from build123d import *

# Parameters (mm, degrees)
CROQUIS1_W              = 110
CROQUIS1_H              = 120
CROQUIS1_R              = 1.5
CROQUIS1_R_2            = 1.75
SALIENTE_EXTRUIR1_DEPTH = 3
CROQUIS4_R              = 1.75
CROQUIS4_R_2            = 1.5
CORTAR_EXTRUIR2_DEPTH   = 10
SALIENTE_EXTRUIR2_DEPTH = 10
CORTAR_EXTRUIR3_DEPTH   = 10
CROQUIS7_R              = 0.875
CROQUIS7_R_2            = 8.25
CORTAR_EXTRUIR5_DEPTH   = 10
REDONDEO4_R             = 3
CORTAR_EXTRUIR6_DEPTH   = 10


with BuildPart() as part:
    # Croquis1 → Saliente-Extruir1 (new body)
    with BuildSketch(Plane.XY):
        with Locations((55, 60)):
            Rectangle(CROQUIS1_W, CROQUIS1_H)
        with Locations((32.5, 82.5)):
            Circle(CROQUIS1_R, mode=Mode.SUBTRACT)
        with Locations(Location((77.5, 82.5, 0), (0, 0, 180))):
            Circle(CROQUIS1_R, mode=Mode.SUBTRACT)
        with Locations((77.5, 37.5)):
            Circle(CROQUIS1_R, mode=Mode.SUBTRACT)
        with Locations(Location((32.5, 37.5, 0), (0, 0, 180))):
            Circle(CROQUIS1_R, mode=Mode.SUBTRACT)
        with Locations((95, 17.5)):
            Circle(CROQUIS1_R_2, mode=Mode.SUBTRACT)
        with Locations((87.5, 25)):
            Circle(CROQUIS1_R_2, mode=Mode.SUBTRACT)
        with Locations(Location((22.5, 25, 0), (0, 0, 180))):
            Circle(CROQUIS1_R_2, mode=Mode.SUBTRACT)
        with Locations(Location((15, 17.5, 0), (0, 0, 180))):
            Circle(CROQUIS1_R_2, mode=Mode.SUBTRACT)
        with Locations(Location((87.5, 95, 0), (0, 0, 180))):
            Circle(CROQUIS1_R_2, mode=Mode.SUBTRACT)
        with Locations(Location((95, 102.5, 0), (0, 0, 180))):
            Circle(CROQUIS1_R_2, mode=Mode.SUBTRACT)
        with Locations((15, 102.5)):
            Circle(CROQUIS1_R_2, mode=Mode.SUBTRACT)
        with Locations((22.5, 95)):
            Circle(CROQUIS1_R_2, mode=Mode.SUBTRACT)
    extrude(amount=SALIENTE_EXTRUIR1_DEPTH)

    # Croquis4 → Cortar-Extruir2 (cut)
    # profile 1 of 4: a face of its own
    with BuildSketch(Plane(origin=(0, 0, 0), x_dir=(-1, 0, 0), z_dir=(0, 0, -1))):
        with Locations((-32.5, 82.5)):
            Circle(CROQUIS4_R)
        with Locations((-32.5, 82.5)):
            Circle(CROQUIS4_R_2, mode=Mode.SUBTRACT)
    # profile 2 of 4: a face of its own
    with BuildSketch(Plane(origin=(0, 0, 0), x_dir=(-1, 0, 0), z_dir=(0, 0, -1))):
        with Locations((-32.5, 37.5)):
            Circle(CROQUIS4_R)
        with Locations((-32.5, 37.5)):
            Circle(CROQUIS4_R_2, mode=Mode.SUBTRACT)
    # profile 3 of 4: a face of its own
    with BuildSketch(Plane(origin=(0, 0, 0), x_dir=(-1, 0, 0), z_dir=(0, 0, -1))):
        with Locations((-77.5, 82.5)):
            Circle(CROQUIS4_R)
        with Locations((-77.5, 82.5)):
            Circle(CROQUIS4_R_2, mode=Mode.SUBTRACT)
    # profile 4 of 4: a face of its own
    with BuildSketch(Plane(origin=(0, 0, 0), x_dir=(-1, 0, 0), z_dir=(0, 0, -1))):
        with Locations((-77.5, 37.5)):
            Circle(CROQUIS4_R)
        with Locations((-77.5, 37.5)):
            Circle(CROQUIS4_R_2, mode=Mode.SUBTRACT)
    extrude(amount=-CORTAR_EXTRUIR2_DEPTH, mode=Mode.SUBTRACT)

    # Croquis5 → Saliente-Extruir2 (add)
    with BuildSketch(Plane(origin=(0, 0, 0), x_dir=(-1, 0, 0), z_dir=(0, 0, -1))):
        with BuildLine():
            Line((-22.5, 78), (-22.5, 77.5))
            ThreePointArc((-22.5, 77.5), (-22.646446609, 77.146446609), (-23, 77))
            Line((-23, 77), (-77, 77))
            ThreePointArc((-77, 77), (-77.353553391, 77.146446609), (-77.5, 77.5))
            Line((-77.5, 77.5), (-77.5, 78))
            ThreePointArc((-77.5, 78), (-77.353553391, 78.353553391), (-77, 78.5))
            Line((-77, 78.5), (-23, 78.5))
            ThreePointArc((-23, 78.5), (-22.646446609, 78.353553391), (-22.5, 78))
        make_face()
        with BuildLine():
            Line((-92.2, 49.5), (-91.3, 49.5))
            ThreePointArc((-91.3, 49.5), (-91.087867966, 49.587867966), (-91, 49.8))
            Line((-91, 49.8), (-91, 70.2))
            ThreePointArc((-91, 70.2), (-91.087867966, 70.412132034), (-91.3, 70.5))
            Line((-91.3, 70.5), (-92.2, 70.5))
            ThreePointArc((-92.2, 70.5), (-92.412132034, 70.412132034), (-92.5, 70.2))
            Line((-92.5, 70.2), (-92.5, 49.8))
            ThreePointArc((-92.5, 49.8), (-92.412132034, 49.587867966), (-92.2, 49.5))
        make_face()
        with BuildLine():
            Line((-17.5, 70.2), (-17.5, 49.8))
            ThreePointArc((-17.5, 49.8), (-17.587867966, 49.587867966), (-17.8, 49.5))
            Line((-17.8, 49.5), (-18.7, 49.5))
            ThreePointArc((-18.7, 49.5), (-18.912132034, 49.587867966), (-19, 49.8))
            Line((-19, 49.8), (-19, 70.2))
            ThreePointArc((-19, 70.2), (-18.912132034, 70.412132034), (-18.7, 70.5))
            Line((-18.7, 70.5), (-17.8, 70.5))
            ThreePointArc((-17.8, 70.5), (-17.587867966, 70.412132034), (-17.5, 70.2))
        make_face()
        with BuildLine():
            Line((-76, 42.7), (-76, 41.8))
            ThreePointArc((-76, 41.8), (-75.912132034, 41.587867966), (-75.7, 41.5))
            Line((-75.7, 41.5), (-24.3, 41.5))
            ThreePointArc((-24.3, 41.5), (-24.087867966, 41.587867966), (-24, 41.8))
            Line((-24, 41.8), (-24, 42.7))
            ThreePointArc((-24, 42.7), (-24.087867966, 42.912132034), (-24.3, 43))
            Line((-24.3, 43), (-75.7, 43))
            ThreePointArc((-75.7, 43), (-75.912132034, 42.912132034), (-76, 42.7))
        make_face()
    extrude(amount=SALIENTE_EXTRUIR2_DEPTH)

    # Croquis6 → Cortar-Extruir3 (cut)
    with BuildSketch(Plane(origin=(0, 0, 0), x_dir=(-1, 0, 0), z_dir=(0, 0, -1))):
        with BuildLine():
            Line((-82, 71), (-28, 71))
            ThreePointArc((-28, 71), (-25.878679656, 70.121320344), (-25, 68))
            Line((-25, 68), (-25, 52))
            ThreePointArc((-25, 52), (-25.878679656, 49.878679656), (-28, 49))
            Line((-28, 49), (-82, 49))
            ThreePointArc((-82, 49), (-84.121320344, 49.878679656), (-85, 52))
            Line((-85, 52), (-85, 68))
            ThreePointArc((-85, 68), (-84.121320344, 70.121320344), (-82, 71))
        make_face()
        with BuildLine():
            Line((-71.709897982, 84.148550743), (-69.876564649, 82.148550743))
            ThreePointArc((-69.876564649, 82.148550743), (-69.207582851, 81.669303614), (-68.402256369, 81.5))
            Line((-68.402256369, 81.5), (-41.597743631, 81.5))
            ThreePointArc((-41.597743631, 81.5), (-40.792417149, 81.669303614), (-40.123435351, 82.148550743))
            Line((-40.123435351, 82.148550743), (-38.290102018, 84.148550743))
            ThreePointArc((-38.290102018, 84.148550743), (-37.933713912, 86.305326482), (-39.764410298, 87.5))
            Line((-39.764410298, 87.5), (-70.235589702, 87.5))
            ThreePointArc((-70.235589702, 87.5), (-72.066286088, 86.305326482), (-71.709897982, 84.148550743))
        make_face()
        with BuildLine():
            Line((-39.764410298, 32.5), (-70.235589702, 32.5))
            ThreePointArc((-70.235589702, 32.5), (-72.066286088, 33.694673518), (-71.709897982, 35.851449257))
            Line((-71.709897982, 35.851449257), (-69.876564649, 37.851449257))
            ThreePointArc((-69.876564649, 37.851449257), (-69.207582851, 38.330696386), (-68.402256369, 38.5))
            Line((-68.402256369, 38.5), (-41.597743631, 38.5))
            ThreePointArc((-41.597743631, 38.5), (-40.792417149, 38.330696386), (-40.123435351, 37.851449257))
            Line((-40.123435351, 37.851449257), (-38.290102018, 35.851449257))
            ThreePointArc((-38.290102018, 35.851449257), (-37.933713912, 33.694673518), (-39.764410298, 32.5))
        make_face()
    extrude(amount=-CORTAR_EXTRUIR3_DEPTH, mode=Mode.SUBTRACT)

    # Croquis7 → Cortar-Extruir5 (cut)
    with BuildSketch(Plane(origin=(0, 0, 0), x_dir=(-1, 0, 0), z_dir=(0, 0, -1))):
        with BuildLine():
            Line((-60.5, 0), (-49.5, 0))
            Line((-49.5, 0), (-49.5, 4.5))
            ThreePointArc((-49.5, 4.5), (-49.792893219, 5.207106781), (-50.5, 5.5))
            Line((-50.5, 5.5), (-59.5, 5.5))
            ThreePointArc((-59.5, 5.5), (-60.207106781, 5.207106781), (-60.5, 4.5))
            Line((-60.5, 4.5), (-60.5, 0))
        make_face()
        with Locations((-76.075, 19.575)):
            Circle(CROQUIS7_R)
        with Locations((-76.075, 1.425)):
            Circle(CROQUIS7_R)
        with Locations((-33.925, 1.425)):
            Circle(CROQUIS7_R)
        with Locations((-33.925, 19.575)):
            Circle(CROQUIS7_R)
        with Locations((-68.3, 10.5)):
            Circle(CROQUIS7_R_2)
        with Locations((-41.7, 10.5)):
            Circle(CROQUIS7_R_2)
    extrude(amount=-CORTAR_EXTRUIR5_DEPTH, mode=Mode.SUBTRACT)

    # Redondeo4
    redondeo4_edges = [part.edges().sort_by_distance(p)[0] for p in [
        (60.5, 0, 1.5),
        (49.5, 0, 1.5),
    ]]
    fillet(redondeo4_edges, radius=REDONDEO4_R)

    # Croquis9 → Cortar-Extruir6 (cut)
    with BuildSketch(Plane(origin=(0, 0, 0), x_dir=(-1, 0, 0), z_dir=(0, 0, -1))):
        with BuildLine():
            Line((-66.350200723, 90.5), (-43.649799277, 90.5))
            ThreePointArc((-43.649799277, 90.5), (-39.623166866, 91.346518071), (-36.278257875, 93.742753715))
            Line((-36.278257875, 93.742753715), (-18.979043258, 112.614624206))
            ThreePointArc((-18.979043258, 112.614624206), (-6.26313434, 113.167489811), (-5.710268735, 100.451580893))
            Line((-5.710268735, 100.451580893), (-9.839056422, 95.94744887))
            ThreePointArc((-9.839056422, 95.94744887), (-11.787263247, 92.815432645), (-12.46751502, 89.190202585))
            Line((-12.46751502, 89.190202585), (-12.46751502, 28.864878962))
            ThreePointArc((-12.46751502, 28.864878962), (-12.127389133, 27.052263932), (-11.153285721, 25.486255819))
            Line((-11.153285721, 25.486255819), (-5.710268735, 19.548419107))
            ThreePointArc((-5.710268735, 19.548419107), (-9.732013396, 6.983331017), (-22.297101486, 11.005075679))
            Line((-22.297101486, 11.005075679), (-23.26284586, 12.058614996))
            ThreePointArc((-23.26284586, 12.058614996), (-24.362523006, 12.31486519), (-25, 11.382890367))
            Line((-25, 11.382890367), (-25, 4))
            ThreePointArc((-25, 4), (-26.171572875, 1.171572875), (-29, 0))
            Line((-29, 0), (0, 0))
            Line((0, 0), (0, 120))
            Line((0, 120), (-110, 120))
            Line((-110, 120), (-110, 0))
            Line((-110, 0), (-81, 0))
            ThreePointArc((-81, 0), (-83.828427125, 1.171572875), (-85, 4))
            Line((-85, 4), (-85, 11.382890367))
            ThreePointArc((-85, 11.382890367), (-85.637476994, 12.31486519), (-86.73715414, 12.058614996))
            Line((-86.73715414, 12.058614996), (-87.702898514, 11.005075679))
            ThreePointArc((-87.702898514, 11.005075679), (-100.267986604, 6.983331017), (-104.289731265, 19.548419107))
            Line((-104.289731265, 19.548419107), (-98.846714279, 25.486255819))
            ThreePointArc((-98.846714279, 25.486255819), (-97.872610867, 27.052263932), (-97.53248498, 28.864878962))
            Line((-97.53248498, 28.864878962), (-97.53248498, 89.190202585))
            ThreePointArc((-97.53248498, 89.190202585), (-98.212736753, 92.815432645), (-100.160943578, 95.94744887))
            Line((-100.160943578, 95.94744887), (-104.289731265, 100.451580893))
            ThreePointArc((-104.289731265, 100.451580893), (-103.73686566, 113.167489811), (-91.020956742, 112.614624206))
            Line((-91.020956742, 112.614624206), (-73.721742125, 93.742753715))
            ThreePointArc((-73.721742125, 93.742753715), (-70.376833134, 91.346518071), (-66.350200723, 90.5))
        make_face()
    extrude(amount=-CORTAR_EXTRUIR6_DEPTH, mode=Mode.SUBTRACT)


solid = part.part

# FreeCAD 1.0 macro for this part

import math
import FreeCAD as App
import Part
import Sketcher


def edges_at(feature, points):
    """Names of the edges that pass closest to the given points."""
    edges = feature.Shape.Edges
    near = lambda p: min(range(len(edges)), key=lambda i: edges[i].distToShape(Part.Vertex(*p))[0])
    return sorted({f"Edge{near(p) + 1}" for p in points})

doc = App.newDocument("Part")
body = doc.addObject("PartDesign::Body", "Body")

sketch1 = body.newObject("Sketcher::SketchObject", "Sketch")
sketch1.AttachmentSupport = (doc.getObject("XY_Plane"), [""])
sketch1.MapMode = "FlatFace"
sketch1.addGeometry(Part.LineSegment(App.Vector(0, 120, 0), App.Vector(0, 0, 0)), False)
sketch1.addGeometry(Part.LineSegment(App.Vector(0, 0, 0), App.Vector(110, 0, 0)), False)
sketch1.addGeometry(Part.LineSegment(App.Vector(110, 0, 0), App.Vector(110, 120, 0)), False)
sketch1.addGeometry(Part.LineSegment(App.Vector(110, 120, 0), App.Vector(0, 120, 0)), False)
sketch1.addGeometry(Part.Circle(App.Vector(15, 17.5, 0), App.Vector(0, 0, 1), 1.8), False)
sketch1.addGeometry(Part.Circle(App.Vector(22.5, 25, 0), App.Vector(0, 0, 1), 1.8), False)
sketch1.addGeometry(Part.Circle(App.Vector(32.5, 37.5, 0), App.Vector(0, 0, 1), 1.5), False)
sketch1.addGeometry(Part.Circle(App.Vector(95, 17.5, 0), App.Vector(0, 0, 1), 1.8), False)
sketch1.addGeometry(Part.Circle(App.Vector(87.5, 25, 0), App.Vector(0, 0, 1), 1.8), False)
sketch1.addGeometry(Part.Circle(App.Vector(77.5, 37.5, 0), App.Vector(0, 0, 1), 1.5), False)
sketch1.addGeometry(Part.Circle(App.Vector(32.5, 82.5, 0), App.Vector(0, 0, 1), 1.5), False)
sketch1.addGeometry(Part.Circle(App.Vector(22.5, 95, 0), App.Vector(0, 0, 1), 1.8), False)
sketch1.addGeometry(Part.Circle(App.Vector(15, 102.5, 0), App.Vector(0, 0, 1), 1.8), False)
sketch1.addGeometry(Part.Circle(App.Vector(77.5, 82.5, 0), App.Vector(0, 0, 1), 1.5), False)
sketch1.addGeometry(Part.Circle(App.Vector(87.5, 95, 0), App.Vector(0, 0, 1), 1.8), False)
sketch1.addGeometry(Part.Circle(App.Vector(95, 102.5, 0), App.Vector(0, 0, 1), 1.8), False)
sketch1.addConstraint(Sketcher.Constraint("Coincident", 0, 2, 1, 1))
sketch1.addConstraint(Sketcher.Constraint("Coincident", 1, 2, 2, 1))
sketch1.addConstraint(Sketcher.Constraint("Coincident", 2, 2, 3, 1))
sketch1.addConstraint(Sketcher.Constraint("Coincident", 3, 2, 0, 1))
sketch1.addConstraint(Sketcher.Constraint("Vertical", 0))
sketch1.addConstraint(Sketcher.Constraint("Horizontal", 1))
sketch1.addConstraint(Sketcher.Constraint("Vertical", 2))
sketch1.addConstraint(Sketcher.Constraint("Horizontal", 3))
sketch1.addConstraint(Sketcher.Constraint("Coincident", 0, 2, -1, 1))
sketch1.addConstraint(Sketcher.Constraint("Equal", 4, 5))
sketch1.addConstraint(Sketcher.Constraint("Equal", 5, 7))
sketch1.addConstraint(Sketcher.Constraint("Equal", 7, 8))
sketch1.addConstraint(Sketcher.Constraint("Equal", 6, 9))
sketch1.addConstraint(Sketcher.Constraint("Equal", 9, 10))
sketch1.addConstraint(Sketcher.Constraint("Equal", 8, 11))
sketch1.addConstraint(Sketcher.Constraint("Equal", 11, 12))
sketch1.addConstraint(Sketcher.Constraint("Equal", 10, 13))
sketch1.addConstraint(Sketcher.Constraint("Equal", 12, 14))
sketch1.addConstraint(Sketcher.Constraint("Equal", 14, 15))
sketch1.addConstraint(Sketcher.Constraint("Horizontal", 4, 3, 7, 3))
sketch1.addConstraint(Sketcher.Constraint("Horizontal", 5, 3, 8, 3))
sketch1.addConstraint(Sketcher.Constraint("Horizontal", 6, 3, 9, 3))
sketch1.addConstraint(Sketcher.Constraint("Horizontal", 10, 3, 13, 3))
sketch1.addConstraint(Sketcher.Constraint("Horizontal", 11, 3, 14, 3))
sketch1.addConstraint(Sketcher.Constraint("Horizontal", 12, 3, 15, 3))
sketch1.addConstraint(Sketcher.Constraint("Vertical", 6, 3, 10, 3))
sketch1.addConstraint(Sketcher.Constraint("Vertical", 5, 3, 11, 3))
sketch1.addConstraint(Sketcher.Constraint("Vertical", 4, 3, 12, 3))
sketch1.addConstraint(Sketcher.Constraint("Vertical", 9, 3, 13, 3))
sketch1.addConstraint(Sketcher.Constraint("Vertical", 8, 3, 14, 3))
sketch1.addConstraint(Sketcher.Constraint("Vertical", 7, 3, 15, 3))
sketch1.addConstraint(Sketcher.Constraint("Diameter", 6, 3.0))
sketch1.addConstraint(Sketcher.Constraint("Diameter", 4, 3.5))
sketch1.addConstraint(Sketcher.Constraint("DistanceX", 1, 1, 1, 2, 110.0))
sketch1.addConstraint(Sketcher.Constraint("DistanceY", 0, 2, 0, 1, 120.0))
sketch1.addConstraint(Sketcher.Constraint("DistanceX", -1, 1, 4, 3, 15.0))
sketch1.addConstraint(Sketcher.Constraint("DistanceY", -1, 1, 5, 3, 25.0))
sketch1.addConstraint(Sketcher.Constraint("DistanceX", -1, 1, 7, 3, 95.0))
sketch1.addConstraint(Sketcher.Constraint("DistanceY", -1, 1, 11, 3, 95.0))
sketch1.addConstraint(Sketcher.Constraint("DistanceX", 5, 3, 6, 3, 10.0))
sketch1.addConstraint(Sketcher.Constraint("DistanceY", 4, 3, 6, 3, 20.0))
sketch1.addConstraint(Sketcher.Constraint("DistanceX", 6, 3, 8, 3, 55.0))
sketch1.addConstraint(Sketcher.Constraint("DistanceX", 9, 3, 8, 3, 10.0))
sketch1.addConstraint(Sketcher.Constraint("DistanceY", 6, 3, 10, 3, 45.0))
sketch1.addConstraint(Sketcher.Constraint("DistanceY", 10, 3, 12, 3, 20.0))
sketch1.addConstraint(Sketcher.Constraint("DistanceY", -1, 1, 4, 3, 17.5))
sketch1.addConstraint(Sketcher.Constraint("DistanceX", -1, 1, 5, 3, 22.5))
pad1 = body.newObject("PartDesign::Pad", "Pad")
pad1.Profile = sketch1
pad1.Length = 3

sketch2 = body.newObject("Sketcher::SketchObject", "Sketch001")
sketch2.AttachmentSupport = (doc.getObject("XY_Plane"), [""])
sketch2.MapMode = "FlatFace"
sketch2.addGeometry(Part.Circle(App.Vector(32.5, 82.5, 0), App.Vector(0, 0, 1), 1.8), False)
sketch2.addGeometry(Part.Circle(App.Vector(32.5, 82.5, 0), App.Vector(0, 0, 1), 1.5), False)
sketch2.addGeometry(Part.Circle(App.Vector(32.5, 37.5, 0), App.Vector(0, 0, 1), 1.8), False)
sketch2.addGeometry(Part.Circle(App.Vector(32.5, 37.5, 0), App.Vector(0, 0, 1), 1.5), False)
sketch2.addGeometry(Part.Circle(App.Vector(77.5, 82.5, 0), App.Vector(0, 0, 1), 1.8), False)
sketch2.addGeometry(Part.Circle(App.Vector(77.5, 82.5, 0), App.Vector(0, 0, 1), 1.5), False)
sketch2.addGeometry(Part.Circle(App.Vector(77.5, 37.5, 0), App.Vector(0, 0, 1), 1.8), False)
sketch2.addGeometry(Part.Circle(App.Vector(77.5, 37.5, 0), App.Vector(0, 0, 1), 1.5), False)
sketch2.addConstraint(Sketcher.Constraint("Coincident", 1, 3, 0, 3))
sketch2.addConstraint(Sketcher.Constraint("Coincident", 3, 3, 2, 3))
sketch2.addConstraint(Sketcher.Constraint("Coincident", 5, 3, 4, 3))
sketch2.addConstraint(Sketcher.Constraint("Coincident", 7, 3, 6, 3))
sketch2.addConstraint(Sketcher.Constraint("Equal", 0, 2))
sketch2.addConstraint(Sketcher.Constraint("Equal", 1, 3))
sketch2.addConstraint(Sketcher.Constraint("Equal", 2, 4))
sketch2.addConstraint(Sketcher.Constraint("Equal", 3, 5))
sketch2.addConstraint(Sketcher.Constraint("Equal", 4, 6))
sketch2.addConstraint(Sketcher.Constraint("Equal", 5, 7))
sketch2.addConstraint(Sketcher.Constraint("Horizontal", 1, 3, 4, 3))
sketch2.addConstraint(Sketcher.Constraint("Horizontal", 3, 3, 6, 3))
sketch2.addConstraint(Sketcher.Constraint("Vertical", 1, 3, 2, 3))
sketch2.addConstraint(Sketcher.Constraint("Vertical", 5, 3, 6, 3))
sketch2.addConstraint(Sketcher.Constraint("Diameter", 1, 3.0))
sketch2.addConstraint(Sketcher.Constraint("Diameter", 0, 3.5))
sketch2.addConstraint(Sketcher.Constraint("DistanceY", 2, 3, 0, 3, 45.0))
sketch2.addConstraint(Sketcher.Constraint("DistanceX", 0, 3, 4, 3, 45.0))
sketch2.addConstraint(Sketcher.Constraint("DistanceX", -1, 1, 0, 3, 32.5))
sketch2.addConstraint(Sketcher.Constraint("DistanceY", -1, 1, 0, 3, 82.5))
pocket1 = body.newObject("PartDesign::Pocket", "Pocket")
pocket1.Profile = sketch2
pocket1.Length = 10
pocket1.Reversed = True

sketch3 = body.newObject("Sketcher::SketchObject", "Sketch002")
sketch3.AttachmentSupport = (doc.getObject("XY_Plane"), [""])
sketch3.MapMode = "FlatFace"
sketch3.addGeometry(Part.LineSegment(App.Vector(22.5, 77.5, 0), App.Vector(22.5, 78, 0)), False)
sketch3.addGeometry(Part.ArcOfCircle(Part.Circle(App.Vector(23, 78, 0), App.Vector(0, 0, 1), 0.5), math.radians(90), math.radians(180)), False)
sketch3.addGeometry(Part.LineSegment(App.Vector(23, 78.5, 0), App.Vector(77, 78.5, 0)), False)
sketch3.addGeometry(Part.ArcOfCircle(Part.Circle(App.Vector(77, 78, 0), App.Vector(0, 0, 1), 0.5), math.radians(0), math.radians(90)), False)
sketch3.addGeometry(Part.LineSegment(App.Vector(77.5, 78, 0), App.Vector(77.5, 77.5, 0)), False)
sketch3.addGeometry(Part.ArcOfCircle(Part.Circle(App.Vector(77, 77.5, 0), App.Vector(0, 0, 1), 0.5), math.radians(-90), math.radians(0)), False)
sketch3.addGeometry(Part.LineSegment(App.Vector(77, 77, 0), App.Vector(23, 77, 0)), False)
sketch3.addGeometry(Part.ArcOfCircle(Part.Circle(App.Vector(23, 77.5, 0), App.Vector(0, 0, 1), 0.5), math.radians(180), math.radians(270)), False)
sketch3.addGeometry(Part.LineSegment(App.Vector(92.2, 49.5, 0), App.Vector(91.3, 49.5, 0)), False)
sketch3.addGeometry(Part.ArcOfCircle(Part.Circle(App.Vector(91.3, 49.8, 0), App.Vector(0, 0, 1), 0.3), math.radians(-180), math.radians(-90)), False)
sketch3.addGeometry(Part.LineSegment(App.Vector(91, 49.8, 0), App.Vector(91, 70.2, 0)), False)
sketch3.addGeometry(Part.ArcOfCircle(Part.Circle(App.Vector(91.3, 70.2, 0), App.Vector(0, 0, 1), 0.3), math.radians(90), math.radians(180)), False)
sketch3.addGeometry(Part.LineSegment(App.Vector(91.3, 70.5, 0), App.Vector(92.2, 70.5, 0)), False)
sketch3.addGeometry(Part.ArcOfCircle(Part.Circle(App.Vector(92.2, 70.2, 0), App.Vector(0, 0, 1), 0.3), math.radians(0), math.radians(90)), False)
sketch3.addGeometry(Part.LineSegment(App.Vector(92.5, 70.2, 0), App.Vector(92.5, 49.8, 0)), False)
sketch3.addGeometry(Part.ArcOfCircle(Part.Circle(App.Vector(92.2, 49.8, 0), App.Vector(0, 0, 1), 0.3), math.radians(-90), math.radians(0)), False)
sketch3.addGeometry(Part.LineSegment(App.Vector(17.5, 49.8, 0), App.Vector(17.5, 70.2, 0)), False)
sketch3.addGeometry(Part.ArcOfCircle(Part.Circle(App.Vector(17.8, 70.2, 0), App.Vector(0, 0, 1), 0.3), math.radians(90), math.radians(180)), False)
sketch3.addGeometry(Part.LineSegment(App.Vector(17.8, 70.5, 0), App.Vector(18.7, 70.5, 0)), False)
sketch3.addGeometry(Part.ArcOfCircle(Part.Circle(App.Vector(18.7, 70.2, 0), App.Vector(0, 0, 1), 0.3), math.radians(0), math.radians(90)), False)
sketch3.addGeometry(Part.LineSegment(App.Vector(19, 70.2, 0), App.Vector(19, 49.8, 0)), False)
sketch3.addGeometry(Part.ArcOfCircle(Part.Circle(App.Vector(18.7, 49.8, 0), App.Vector(0, 0, 1), 0.3), math.radians(-90), math.radians(0)), False)
sketch3.addGeometry(Part.LineSegment(App.Vector(18.7, 49.5, 0), App.Vector(17.8, 49.5, 0)), False)
sketch3.addGeometry(Part.ArcOfCircle(Part.Circle(App.Vector(17.8, 49.8, 0), App.Vector(0, 0, 1), 0.3), math.radians(-180), math.radians(-90)), False)
sketch3.addGeometry(Part.LineSegment(App.Vector(76, 42.7, 0), App.Vector(76, 41.8, 0)), False)
sketch3.addGeometry(Part.ArcOfCircle(Part.Circle(App.Vector(75.7, 41.8, 0), App.Vector(0, 0, 1), 0.3), math.radians(-90), math.radians(0)), False)
sketch3.addGeometry(Part.LineSegment(App.Vector(75.7, 41.5, 0), App.Vector(24.3, 41.5, 0)), False)
sketch3.addGeometry(Part.ArcOfCircle(Part.Circle(App.Vector(24.3, 41.8, 0), App.Vector(0, 0, 1), 0.3), math.radians(-180), math.radians(-90)), False)
sketch3.addGeometry(Part.LineSegment(App.Vector(24, 41.8, 0), App.Vector(24, 42.7, 0)), False)
sketch3.addGeometry(Part.ArcOfCircle(Part.Circle(App.Vector(24.3, 42.7, 0), App.Vector(0, 0, 1), 0.3), math.radians(90), math.radians(180)), False)
sketch3.addGeometry(Part.LineSegment(App.Vector(24.3, 43, 0), App.Vector(75.7, 43, 0)), False)
sketch3.addGeometry(Part.ArcOfCircle(Part.Circle(App.Vector(75.7, 42.7, 0), App.Vector(0, 0, 1), 0.3), math.radians(0), math.radians(90)), False)
sketch3.addConstraint(Sketcher.Constraint("Tangent", 0, 2, 1, 2))
sketch3.addConstraint(Sketcher.Constraint("Tangent", 1, 1, 2, 1))
sketch3.addConstraint(Sketcher.Constraint("Tangent", 2, 2, 3, 2))
sketch3.addConstraint(Sketcher.Constraint("Tangent", 3, 1, 4, 1))
sketch3.addConstraint(Sketcher.Constraint("Tangent", 4, 2, 5, 2))
sketch3.addConstraint(Sketcher.Constraint("Tangent", 5, 1, 6, 1))
sketch3.addConstraint(Sketcher.Constraint("Tangent", 6, 2, 7, 2))
sketch3.addConstraint(Sketcher.Constraint("Tangent", 7, 1, 0, 1))
sketch3.addConstraint(Sketcher.Constraint("Tangent", 8, 2, 9, 2))
sketch3.addConstraint(Sketcher.Constraint("Tangent", 9, 1, 10, 1))
sketch3.addConstraint(Sketcher.Constraint("Tangent", 10, 2, 11, 2))
sketch3.addConstraint(Sketcher.Constraint("Tangent", 11, 1, 12, 1))
sketch3.addConstraint(Sketcher.Constraint("Tangent", 12, 2, 13, 2))
sketch3.addConstraint(Sketcher.Constraint("Tangent", 13, 1, 14, 1))
sketch3.addConstraint(Sketcher.Constraint("Tangent", 14, 2, 15, 2))
sketch3.addConstraint(Sketcher.Constraint("Tangent", 15, 1, 8, 1))
sketch3.addConstraint(Sketcher.Constraint("Tangent", 16, 2, 17, 2))
sketch3.addConstraint(Sketcher.Constraint("Tangent", 17, 1, 18, 1))
sketch3.addConstraint(Sketcher.Constraint("Tangent", 18, 2, 19, 2))
sketch3.addConstraint(Sketcher.Constraint("Tangent", 19, 1, 20, 1))
sketch3.addConstraint(Sketcher.Constraint("Tangent", 20, 2, 21, 2))
sketch3.addConstraint(Sketcher.Constraint("Tangent", 21, 1, 22, 1))
sketch3.addConstraint(Sketcher.Constraint("Tangent", 22, 2, 23, 2))
sketch3.addConstraint(Sketcher.Constraint("Tangent", 23, 1, 16, 1))
sketch3.addConstraint(Sketcher.Constraint("Tangent", 24, 2, 25, 2))
sketch3.addConstraint(Sketcher.Constraint("Tangent", 25, 1, 26, 1))
sketch3.addConstraint(Sketcher.Constraint("Tangent", 26, 2, 27, 2))
sketch3.addConstraint(Sketcher.Constraint("Tangent", 27, 1, 28, 1))
sketch3.addConstraint(Sketcher.Constraint("Tangent", 28, 2, 29, 2))
sketch3.addConstraint(Sketcher.Constraint("Tangent", 29, 1, 30, 1))
sketch3.addConstraint(Sketcher.Constraint("Tangent", 30, 2, 31, 2))
sketch3.addConstraint(Sketcher.Constraint("Tangent", 31, 1, 24, 1))
sketch3.addConstraint(Sketcher.Constraint("Vertical", 0))
sketch3.addConstraint(Sketcher.Constraint("Horizontal", 2))
sketch3.addConstraint(Sketcher.Constraint("Vertical", 4))
sketch3.addConstraint(Sketcher.Constraint("Horizontal", 6))
sketch3.addConstraint(Sketcher.Constraint("Horizontal", 8))
sketch3.addConstraint(Sketcher.Constraint("Vertical", 10))
sketch3.addConstraint(Sketcher.Constraint("Horizontal", 12))
sketch3.addConstraint(Sketcher.Constraint("Vertical", 14))
sketch3.addConstraint(Sketcher.Constraint("Vertical", 16))
sketch3.addConstraint(Sketcher.Constraint("Horizontal", 18))
sketch3.addConstraint(Sketcher.Constraint("Vertical", 20))
sketch3.addConstraint(Sketcher.Constraint("Horizontal", 22))
sketch3.addConstraint(Sketcher.Constraint("Vertical", 24))
sketch3.addConstraint(Sketcher.Constraint("Horizontal", 26))
sketch3.addConstraint(Sketcher.Constraint("Vertical", 28))
sketch3.addConstraint(Sketcher.Constraint("Horizontal", 30))
sketch3.addConstraint(Sketcher.Constraint("Equal", 1, 3))
sketch3.addConstraint(Sketcher.Constraint("Equal", 3, 5))
sketch3.addConstraint(Sketcher.Constraint("Equal", 5, 7))
sketch3.addConstraint(Sketcher.Constraint("Equal", 9, 11))
sketch3.addConstraint(Sketcher.Constraint("Equal", 11, 13))
sketch3.addConstraint(Sketcher.Constraint("Equal", 13, 15))
sketch3.addConstraint(Sketcher.Constraint("Equal", 15, 17))
sketch3.addConstraint(Sketcher.Constraint("Equal", 17, 19))
sketch3.addConstraint(Sketcher.Constraint("Equal", 19, 21))
sketch3.addConstraint(Sketcher.Constraint("Equal", 21, 23))
sketch3.addConstraint(Sketcher.Constraint("Equal", 23, 25))
sketch3.addConstraint(Sketcher.Constraint("Equal", 25, 27))
sketch3.addConstraint(Sketcher.Constraint("Equal", 27, 29))
sketch3.addConstraint(Sketcher.Constraint("Equal", 29, 31))
sketch3.addConstraint(Sketcher.Constraint("Horizontal", 13, 3, 17, 3))
sketch3.addConstraint(Sketcher.Constraint("Horizontal", 15, 3, 21, 3))
sketch3.addConstraint(Sketcher.Constraint("Equal", 12, 18))
sketch3.addConstraint(Sketcher.Constraint("Equal", 22, 24))
sketch3.addConstraint(Sketcher.Constraint("Radius", 1, 0.5))
sketch3.addConstraint(Sketcher.Constraint("Radius", 9, 0.3))
sketch3.addConstraint(Sketcher.Constraint("DistanceX", 2, 1, 2, 2, 54.0))
sketch3.addConstraint(Sketcher.Constraint("DistanceX", 8, 2, 8, 1, 0.9))
sketch3.addConstraint(Sketcher.Constraint("DistanceX", 26, 2, 26, 1, 51.4))
sketch3.addConstraint(Sketcher.Constraint("DistanceY", 0, 1, 0, 2, 0.5))
sketch3.addConstraint(Sketcher.Constraint("DistanceY", 10, 1, 10, 2, 20.4))
sketch3.addConstraint(Sketcher.Constraint("DistanceX", -1, 1, 1, 3, 23.0))
sketch3.addConstraint(Sketcher.Constraint("DistanceY", -1, 1, 1, 3, 78.0))
sketch3.addConstraint(Sketcher.Constraint("DistanceX", -1, 1, 9, 1, 91.0))
sketch3.addConstraint(Sketcher.Constraint("DistanceX", -1, 1, 19, 1, 19.0))
sketch3.addConstraint(Sketcher.Constraint("DistanceX", -1, 1, 24, 2, 76.0))
sketch3.addConstraint(Sketcher.Constraint("DistanceY", -1, 1, 29, 1, 43.0))
sketch3.addConstraint(Sketcher.Constraint("DistanceY", 25, 3, 9, 3, 8.0))
pad2 = body.newObject("PartDesign::Pad", "Pad001")
pad2.Profile = sketch3
pad2.Length = 10
pad2.Reversed = True

sketch4 = body.newObject("Sketcher::SketchObject", "Sketch003")
sketch4.AttachmentSupport = (doc.getObject("XY_Plane"), [""])
sketch4.MapMode = "FlatFace"
sketch4.addGeometry(Part.LineSegment(App.Vector(28, 71, 0), App.Vector(82, 71, 0)), False)
sketch4.addGeometry(Part.ArcOfCircle(Part.Circle(App.Vector(82, 68, 0), App.Vector(0, 0, 1), 3), math.radians(0), math.radians(90)), False)
sketch4.addGeometry(Part.LineSegment(App.Vector(85, 68, 0), App.Vector(85, 52, 0)), False)
sketch4.addGeometry(Part.ArcOfCircle(Part.Circle(App.Vector(82, 52, 0), App.Vector(0, 0, 1), 3), math.radians(-90), math.radians(0)), False)
sketch4.addGeometry(Part.LineSegment(App.Vector(82, 49, 0), App.Vector(28, 49, 0)), False)
sketch4.addGeometry(Part.ArcOfCircle(Part.Circle(App.Vector(28, 52, 0), App.Vector(0, 0, 1), 3), math.radians(180), math.radians(270)), False)
sketch4.addGeometry(Part.LineSegment(App.Vector(25, 52, 0), App.Vector(25, 68, 0)), False)
sketch4.addGeometry(Part.ArcOfCircle(Part.Circle(App.Vector(28, 68, 0), App.Vector(0, 0, 1), 3), math.radians(90), math.radians(180)), False)
sketch4.addGeometry(Part.LineSegment(App.Vector(71.7, 84.1, 0), App.Vector(69.9, 82.1, 0)), False)
sketch4.addGeometry(Part.ArcOfCircle(Part.Circle(App.Vector(68.4, 83.5, 0), App.Vector(0, 0, 1), 2), math.radians(-90), math.radians(-43)), False)
sketch4.addGeometry(Part.LineSegment(App.Vector(68.4, 81.5, 0), App.Vector(41.6, 81.5, 0)), False)
sketch4.addGeometry(Part.ArcOfCircle(Part.Circle(App.Vector(41.6, 83.5, 0), App.Vector(0, 0, 1), 2), math.radians(-137), math.radians(-90)), False)
sketch4.addGeometry(Part.LineSegment(App.Vector(40.1, 82.1, 0), App.Vector(38.3, 84.1, 0)), False)
sketch4.addGeometry(Part.ArcOfCircle(Part.Circle(App.Vector(39.8, 85.5, 0), App.Vector(0, 0, 1), 2), math.radians(90), math.radians(223)), False)
sketch4.addGeometry(Part.LineSegment(App.Vector(39.8, 87.5, 0), App.Vector(70.2, 87.5, 0)), False)
sketch4.addGeometry(Part.ArcOfCircle(Part.Circle(App.Vector(70.2, 85.5, 0), App.Vector(0, 0, 1), 2), math.radians(-43), math.radians(90)), False)
sketch4.addGeometry(Part.LineSegment(App.Vector(70.2, 32.5, 0), App.Vector(39.8, 32.5, 0)), False)
sketch4.addGeometry(Part.ArcOfCircle(Part.Circle(App.Vector(39.8, 34.5, 0), App.Vector(0, 0, 1), 2), math.radians(137), math.radians(270)), False)
sketch4.addGeometry(Part.LineSegment(App.Vector(38.3, 35.9, 0), App.Vector(40.1, 37.9, 0)), False)
sketch4.addGeometry(Part.ArcOfCircle(Part.Circle(App.Vector(41.6, 36.5, 0), App.Vector(0, 0, 1), 2), math.radians(90), math.radians(137)), False)
sketch4.addGeometry(Part.LineSegment(App.Vector(41.6, 38.5, 0), App.Vector(68.4, 38.5, 0)), False)
sketch4.addGeometry(Part.ArcOfCircle(Part.Circle(App.Vector(68.4, 36.5, 0), App.Vector(0, 0, 1), 2), math.radians(43), math.radians(90)), False)
sketch4.addGeometry(Part.LineSegment(App.Vector(69.9, 37.9, 0), App.Vector(71.7, 35.9, 0)), False)
sketch4.addGeometry(Part.ArcOfCircle(Part.Circle(App.Vector(70.2, 34.5, 0), App.Vector(0, 0, 1), 2), math.radians(-90), math.radians(43)), False)
sketch4.addConstraint(Sketcher.Constraint("Tangent", 0, 2, 1, 2))
sketch4.addConstraint(Sketcher.Constraint("Tangent", 1, 1, 2, 1))
sketch4.addConstraint(Sketcher.Constraint("Tangent", 2, 2, 3, 2))
sketch4.addConstraint(Sketcher.Constraint("Tangent", 3, 1, 4, 1))
sketch4.addConstraint(Sketcher.Constraint("Tangent", 4, 2, 5, 2))
sketch4.addConstraint(Sketcher.Constraint("Tangent", 5, 1, 6, 1))
sketch4.addConstraint(Sketcher.Constraint("Tangent", 6, 2, 7, 2))
sketch4.addConstraint(Sketcher.Constraint("Tangent", 7, 1, 0, 1))
sketch4.addConstraint(Sketcher.Constraint("Tangent", 8, 2, 9, 2))
sketch4.addConstraint(Sketcher.Constraint("Tangent", 9, 1, 10, 1))
sketch4.addConstraint(Sketcher.Constraint("Tangent", 10, 2, 11, 2))
sketch4.addConstraint(Sketcher.Constraint("Tangent", 11, 1, 12, 1))
sketch4.addConstraint(Sketcher.Constraint("Tangent", 12, 2, 13, 2))
sketch4.addConstraint(Sketcher.Constraint("Tangent", 13, 1, 14, 1))
sketch4.addConstraint(Sketcher.Constraint("Tangent", 14, 2, 15, 2))
sketch4.addConstraint(Sketcher.Constraint("Tangent", 15, 1, 8, 1))
sketch4.addConstraint(Sketcher.Constraint("Tangent", 16, 2, 17, 2))
sketch4.addConstraint(Sketcher.Constraint("Tangent", 17, 1, 18, 1))
sketch4.addConstraint(Sketcher.Constraint("Tangent", 18, 2, 19, 2))
sketch4.addConstraint(Sketcher.Constraint("Tangent", 19, 1, 20, 1))
sketch4.addConstraint(Sketcher.Constraint("Tangent", 20, 2, 21, 2))
sketch4.addConstraint(Sketcher.Constraint("Tangent", 21, 1, 22, 1))
sketch4.addConstraint(Sketcher.Constraint("Tangent", 22, 2, 23, 2))
sketch4.addConstraint(Sketcher.Constraint("Tangent", 23, 1, 16, 1))
sketch4.addConstraint(Sketcher.Constraint("Horizontal", 0))
sketch4.addConstraint(Sketcher.Constraint("Vertical", 2))
sketch4.addConstraint(Sketcher.Constraint("Horizontal", 4))
sketch4.addConstraint(Sketcher.Constraint("Vertical", 6))
sketch4.addConstraint(Sketcher.Constraint("Horizontal", 10))
sketch4.addConstraint(Sketcher.Constraint("Horizontal", 14))
sketch4.addConstraint(Sketcher.Constraint("Horizontal", 16))
sketch4.addConstraint(Sketcher.Constraint("Horizontal", 20))
sketch4.addConstraint(Sketcher.Constraint("Equal", 1, 3))
sketch4.addConstraint(Sketcher.Constraint("Equal", 3, 5))
sketch4.addConstraint(Sketcher.Constraint("Equal", 5, 7))
sketch4.addConstraint(Sketcher.Constraint("Equal", 9, 11))
sketch4.addConstraint(Sketcher.Constraint("Equal", 11, 13))
sketch4.addConstraint(Sketcher.Constraint("Equal", 13, 15))
sketch4.addConstraint(Sketcher.Constraint("Equal", 15, 17))
sketch4.addConstraint(Sketcher.Constraint("Equal", 17, 19))
sketch4.addConstraint(Sketcher.Constraint("Equal", 19, 21))
sketch4.addConstraint(Sketcher.Constraint("Equal", 21, 23))
sketch4.addConstraint(Sketcher.Constraint("Parallel", 8, 18))
sketch4.addConstraint(Sketcher.Constraint("Parallel", 12, 22))
sketch4.addConstraint(Sketcher.Constraint("Horizontal", 8, 2, 11, 1))
sketch4.addConstraint(Sketcher.Constraint("Vertical", 13, 3, 17, 3))
sketch4.addConstraint(Sketcher.Constraint("Vertical", 11, 3, 19, 3))
sketch4.addConstraint(Sketcher.Constraint("Vertical", 9, 3, 21, 3))
sketch4.addConstraint(Sketcher.Constraint("Radius", 1, 3.0))
sketch4.addConstraint(Sketcher.Constraint("Radius", 9, 2.0))
sketch4.addConstraint(Sketcher.Constraint("DistanceX", 0, 1, 0, 2, 54.0))
sketch4.addConstraint(Sketcher.Constraint("DistanceY", 2, 2, 2, 1, 16.0))
sketch4.addConstraint(Sketcher.Constraint("DistanceX", -1, 1, 1, 3, 82.0))
sketch4.addConstraint(Sketcher.Constraint("DistanceY", -1, 1, 1, 3, 68.0))
sketch4.addConstraint(Sketcher.Constraint("DistanceY", 11, 3, 13, 3, 2.0))
sketch4.addConstraint(Sketcher.Constraint("DistanceY", 17, 3, 11, 3, 49.0))
sketch4.addConstraint(Sketcher.Constraint("DistanceY", -1, 1, 9, 3, 83.5))
sketch4.addConstraint(Sketcher.Constraint("DistanceX", 14, 1, 14, 2, 30.471179))
sketch4.addConstraint(Sketcher.Constraint("DistanceX", 10, 2, 10, 1, 26.804513))
sketch4.addConstraint(Sketcher.Constraint("DistanceX", -1, 1, 13, 3, 39.76441))
pocket2 = body.newObject("PartDesign::Pocket", "Pocket001")
pocket2.Profile = sketch4
pocket2.Length = 10
pocket2.Reversed = True

sketch5 = body.newObject("Sketcher::SketchObject", "Sketch004")
sketch5.AttachmentSupport = (doc.getObject("XY_Plane"), [""])
sketch5.MapMode = "FlatFace"
sketch5.addGeometry(Part.LineSegment(App.Vector(60.5, 0, 0), App.Vector(49.5, 0, 0)), False)
sketch5.addGeometry(Part.LineSegment(App.Vector(49.5, 0, 0), App.Vector(49.5, 4.5, 0)), False)
sketch5.addGeometry(Part.ArcOfCircle(Part.Circle(App.Vector(50.5, 4.5, 0), App.Vector(0, 0, 1), 1), math.radians(90), math.radians(180)), False)
sketch5.addGeometry(Part.LineSegment(App.Vector(50.5, 5.5, 0), App.Vector(59.5, 5.5, 0)), False)
sketch5.addGeometry(Part.ArcOfCircle(Part.Circle(App.Vector(59.5, 4.5, 0), App.Vector(0, 0, 1), 1), math.radians(0), math.radians(90)), False)
sketch5.addGeometry(Part.LineSegment(App.Vector(60.5, 4.5, 0), App.Vector(60.5, 0, 0)), False)
sketch5.addGeometry(Part.Circle(App.Vector(76.1, 19.6, 0), App.Vector(0, 0, 1), 0.9), False)
sketch5.addGeometry(Part.Circle(App.Vector(76.1, 1.4, 0), App.Vector(0, 0, 1), 0.9), False)
sketch5.addGeometry(Part.Circle(App.Vector(33.9, 1.4, 0), App.Vector(0, 0, 1), 0.9), False)
sketch5.addGeometry(Part.Circle(App.Vector(33.9, 19.6, 0), App.Vector(0, 0, 1), 0.9), False)
sketch5.addGeometry(Part.Circle(App.Vector(68.3, 10.5, 0), App.Vector(0, 0, 1), 8.2), False)
sketch5.addGeometry(Part.Circle(App.Vector(41.7, 10.5, 0), App.Vector(0, 0, 1), 8.2), False)
sketch5.addConstraint(Sketcher.Constraint("Coincident", 0, 2, 1, 1))
sketch5.addConstraint(Sketcher.Constraint("Tangent", 1, 2, 2, 2))
sketch5.addConstraint(Sketcher.Constraint("Tangent", 2, 1, 3, 1))
sketch5.addConstraint(Sketcher.Constraint("Tangent", 3, 2, 4, 2))
sketch5.addConstraint(Sketcher.Constraint("Tangent", 4, 1, 5, 1))
sketch5.addConstraint(Sketcher.Constraint("Coincident", 5, 2, 0, 1))
sketch5.addConstraint(Sketcher.Constraint("Horizontal", 0))
sketch5.addConstraint(Sketcher.Constraint("Vertical", 1))
sketch5.addConstraint(Sketcher.Constraint("Horizontal", 3))
sketch5.addConstraint(Sketcher.Constraint("Vertical", 5))
sketch5.addConstraint(Sketcher.Constraint("Equal", 2, 4))
sketch5.addConstraint(Sketcher.Constraint("Equal", 6, 7))
sketch5.addConstraint(Sketcher.Constraint("Equal", 7, 8))
sketch5.addConstraint(Sketcher.Constraint("Equal", 8, 9))
sketch5.addConstraint(Sketcher.Constraint("Equal", 10, 11))
sketch5.addConstraint(Sketcher.Constraint("PointOnObject", 0, 2, -1))
sketch5.addConstraint(Sketcher.Constraint("Horizontal", 7, 3, 8, 3))
sketch5.addConstraint(Sketcher.Constraint("Horizontal", 6, 3, 9, 3))
sketch5.addConstraint(Sketcher.Constraint("Horizontal", 10, 3, 11, 3))
sketch5.addConstraint(Sketcher.Constraint("Vertical", 6, 3, 7, 3))
sketch5.addConstraint(Sketcher.Constraint("Vertical", 8, 3, 9, 3))
sketch5.addConstraint(Sketcher.Constraint("Radius", 2, 1.0))
sketch5.addConstraint(Sketcher.Constraint("Diameter", 10, 16.5))
sketch5.addConstraint(Sketcher.Constraint("Diameter", 6, 1.75))
sketch5.addConstraint(Sketcher.Constraint("DistanceX", 0, 2, 0, 1, 11.0))
sketch5.addConstraint(Sketcher.Constraint("DistanceY", 1, 1, 1, 2, 4.5))
sketch5.addConstraint(Sketcher.Constraint("DistanceY", 4, 3, 10, 3, 6.0))
sketch5.addConstraint(Sketcher.Constraint("DistanceX", -1, 1, 2, 3, 50.5))
sketch5.addConstraint(Sketcher.Constraint("DistanceX", -1, 1, 10, 3, 68.3))
sketch5.addConstraint(Sketcher.Constraint("DistanceX", -1, 1, 11, 3, 41.7))
sketch5.addConstraint(Sketcher.Constraint("DistanceY", 7, 3, 6, 3, 18.15))
sketch5.addConstraint(Sketcher.Constraint("DistanceX", 8, 3, 7, 3, 42.15))
sketch5.addConstraint(Sketcher.Constraint("DistanceX", -1, 1, 6, 3, 76.075))
sketch5.addConstraint(Sketcher.Constraint("DistanceY", -1, 1, 6, 3, 19.575))
pocket3 = body.newObject("PartDesign::Pocket", "Pocket002")
pocket3.Profile = sketch5
pocket3.Length = 10
pocket3.Reversed = True
doc.recompute()

fillet = body.newObject("PartDesign::Fillet", "Fillet")
fillet.Base = (pocket3, edges_at(pocket3, [(60.5, 0, 1.5), (49.5, 0, 1.5)]))
fillet.Radius = 3

sketch6 = body.newObject("Sketcher::SketchObject", "Sketch005")
sketch6.AttachmentSupport = (doc.getObject("XY_Plane"), [""])
sketch6.MapMode = "FlatFace"
sketch6.addGeometry(Part.LineSegment(App.Vector(66.350201, 90.5, 0), App.Vector(43.649799, 90.5, 0)), False)
sketch6.addGeometry(Part.ArcOfCircle(Part.Circle(App.Vector(43.649799, 100.5, 0), App.Vector(0, 0, 1), 10), math.radians(-137.489553), math.radians(-90)), False)
sketch6.addGeometry(Part.LineSegment(App.Vector(36.278258, 93.742754, 0), App.Vector(18.979043, 112.614624, 0)), False)
sketch6.addGeometry(Part.ArcOfCircle(Part.Circle(App.Vector(12.344656, 106.533103, 0), App.Vector(0, 0, 1), 9), math.radians(42.510447), math.radians(222.510447)), False)
sketch6.addGeometry(Part.LineSegment(App.Vector(5.710269, 100.451581, 0), App.Vector(9.839056, 95.947449, 0)), False)
sketch6.addGeometry(Part.ArcOfCircle(Part.Circle(App.Vector(2.467515, 89.190203, 0), App.Vector(0, 0, 1), 10), math.radians(0), math.radians(42.510447)), False)
sketch6.addGeometry(Part.LineSegment(App.Vector(12.467515, 89.190203, 0), App.Vector(12.467515, 28.864879, 0)), False)
sketch6.addGeometry(Part.ArcOfCircle(Part.Circle(App.Vector(7.467515, 28.864879, 0), App.Vector(0, 0, 1), 5), math.radians(-42.510447), math.radians(0)), False)
sketch6.addGeometry(Part.LineSegment(App.Vector(11.153286, 25.486256, 0), App.Vector(5.710269, 19.548419, 0)), False)
sketch6.addGeometry(Part.ArcOfCircle(Part.Circle(App.Vector(14.003685, 15.276747, 0), App.Vector(0, 0, 1), 9.328876), math.radians(152.748462), math.radians(332.748462)), False)
sketch6.addGeometry(Part.LineSegment(App.Vector(22.297101, 11.005076, 0), App.Vector(23.262846, 12.058615, 0)), False)
sketch6.addGeometry(Part.ArcOfCircle(Part.Circle(App.Vector(24, 11.38289, 0), App.Vector(0, 0, 1), 1), math.radians(0), math.radians(137.489553)), False)
sketch6.addGeometry(Part.LineSegment(App.Vector(25, 11.38289, 0), App.Vector(25, 4, 0)), False)
sketch6.addGeometry(Part.ArcOfCircle(Part.Circle(App.Vector(29, 4, 0), App.Vector(0, 0, 1), 4), math.radians(180), math.radians(270)), False)
sketch6.addGeometry(Part.LineSegment(App.Vector(29, 0, 0), App.Vector(0, 0, 0)), False)
sketch6.addGeometry(Part.LineSegment(App.Vector(0, 0, 0), App.Vector(0, 120, 0)), False)
sketch6.addGeometry(Part.LineSegment(App.Vector(0, 120, 0), App.Vector(110, 120, 0)), False)
sketch6.addGeometry(Part.LineSegment(App.Vector(110, 120, 0), App.Vector(110, 0, 0)), False)
sketch6.addGeometry(Part.LineSegment(App.Vector(110, 0, 0), App.Vector(81, 0, 0)), False)
sketch6.addGeometry(Part.ArcOfCircle(Part.Circle(App.Vector(81, 4, 0), App.Vector(0, 0, 1), 4), math.radians(-90), math.radians(0)), False)
sketch6.addGeometry(Part.LineSegment(App.Vector(85, 4, 0), App.Vector(85, 11.38289, 0)), False)
sketch6.addGeometry(Part.ArcOfCircle(Part.Circle(App.Vector(86, 11.38289, 0), App.Vector(0, 0, 1), 1), math.radians(42.510447), math.radians(180)), False)
sketch6.addGeometry(Part.LineSegment(App.Vector(86.737154, 12.058615, 0), App.Vector(87.702899, 11.005076, 0)), False)
sketch6.addGeometry(Part.ArcOfCircle(Part.Circle(App.Vector(95.996315, 15.276747, 0), App.Vector(0, 0, 1), 9.328876), math.radians(-152.748462), math.radians(27.251538)), False)
sketch6.addGeometry(Part.LineSegment(App.Vector(104.289731, 19.548419, 0), App.Vector(98.846714, 25.486256, 0)), False)
sketch6.addGeometry(Part.ArcOfCircle(Part.Circle(App.Vector(102.532485, 28.864879, 0), App.Vector(0, 0, 1), 5), math.radians(-180), math.radians(-137.489553)), False)
sketch6.addGeometry(Part.LineSegment(App.Vector(97.532485, 28.864879, 0), App.Vector(97.532485, 89.190203, 0)), False)
sketch6.addGeometry(Part.ArcOfCircle(Part.Circle(App.Vector(107.532485, 89.190203, 0), App.Vector(0, 0, 1), 10), math.radians(137.489553), math.radians(180)), False)
sketch6.addGeometry(Part.LineSegment(App.Vector(100.160944, 95.947449, 0), App.Vector(104.289731, 100.451581, 0)), False)
sketch6.addGeometry(Part.ArcOfCircle(Part.Circle(App.Vector(97.655344, 106.533103, 0), App.Vector(0, 0, 1), 9), math.radians(-42.510447), math.radians(137.489553)), False)
sketch6.addGeometry(Part.LineSegment(App.Vector(91.020957, 112.614624, 0), App.Vector(73.721742, 93.742754, 0)), False)
sketch6.addGeometry(Part.ArcOfCircle(Part.Circle(App.Vector(66.350201, 100.5, 0), App.Vector(0, 0, 1), 10), math.radians(-90), math.radians(-42.510447)), False)
sketch6.addConstraint(Sketcher.Constraint("Coincident", 0, 2, 1, 2))
sketch6.addConstraint(Sketcher.Constraint("Coincident", 1, 1, 2, 1))
sketch6.addConstraint(Sketcher.Constraint("Coincident", 2, 2, 3, 1))
sketch6.addConstraint(Sketcher.Constraint("Coincident", 3, 2, 4, 1))
sketch6.addConstraint(Sketcher.Constraint("Coincident", 4, 2, 5, 2))
sketch6.addConstraint(Sketcher.Constraint("Coincident", 5, 1, 6, 1))
sketch6.addConstraint(Sketcher.Constraint("Coincident", 6, 2, 7, 2))
sketch6.addConstraint(Sketcher.Constraint("Coincident", 7, 1, 8, 1))
sketch6.addConstraint(Sketcher.Constraint("Coincident", 8, 2, 9, 1))
sketch6.addConstraint(Sketcher.Constraint("Coincident", 9, 2, 10, 1))
sketch6.addConstraint(Sketcher.Constraint("Coincident", 10, 2, 11, 2))
sketch6.addConstraint(Sketcher.Constraint("Coincident", 11, 1, 12, 1))
sketch6.addConstraint(Sketcher.Constraint("Coincident", 12, 2, 13, 1))
sketch6.addConstraint(Sketcher.Constraint("Coincident", 13, 2, 14, 1))
sketch6.addConstraint(Sketcher.Constraint("Coincident", 14, 2, 15, 1))
sketch6.addConstraint(Sketcher.Constraint("Coincident", 15, 2, 16, 1))
sketch6.addConstraint(Sketcher.Constraint("Coincident", 16, 2, 17, 1))
sketch6.addConstraint(Sketcher.Constraint("Coincident", 17, 2, 18, 1))
sketch6.addConstraint(Sketcher.Constraint("Coincident", 18, 2, 19, 1))
sketch6.addConstraint(Sketcher.Constraint("Coincident", 19, 2, 20, 1))
sketch6.addConstraint(Sketcher.Constraint("Coincident", 20, 2, 21, 2))
sketch6.addConstraint(Sketcher.Constraint("Coincident", 21, 1, 22, 1))
sketch6.addConstraint(Sketcher.Constraint("Coincident", 22, 2, 23, 1))
sketch6.addConstraint(Sketcher.Constraint("Coincident", 23, 2, 24, 1))
sketch6.addConstraint(Sketcher.Constraint("Coincident", 24, 2, 25, 2))
sketch6.addConstraint(Sketcher.Constraint("Coincident", 25, 1, 26, 1))
sketch6.addConstraint(Sketcher.Constraint("Coincident", 26, 2, 27, 2))
sketch6.addConstraint(Sketcher.Constraint("Coincident", 27, 1, 28, 1))
sketch6.addConstraint(Sketcher.Constraint("Coincident", 28, 2, 29, 1))
sketch6.addConstraint(Sketcher.Constraint("Coincident", 29, 2, 30, 1))
sketch6.addConstraint(Sketcher.Constraint("Coincident", 30, 2, 31, 2))
sketch6.addConstraint(Sketcher.Constraint("Coincident", 31, 1, 0, 1))
sketch6.addConstraint(Sketcher.Constraint("Horizontal", 0))
sketch6.addConstraint(Sketcher.Constraint("Vertical", 6))
sketch6.addConstraint(Sketcher.Constraint("Vertical", 12))
sketch6.addConstraint(Sketcher.Constraint("Horizontal", 14))
sketch6.addConstraint(Sketcher.Constraint("Vertical", 15))
sketch6.addConstraint(Sketcher.Constraint("Horizontal", 16))
sketch6.addConstraint(Sketcher.Constraint("Vertical", 17))
sketch6.addConstraint(Sketcher.Constraint("Horizontal", 18))
sketch6.addConstraint(Sketcher.Constraint("Vertical", 20))
sketch6.addConstraint(Sketcher.Constraint("Vertical", 26))
sketch6.addConstraint(Sketcher.Constraint("Coincident", 14, 2, -1, 1))
sketch6.addConstraint(Sketcher.Constraint("PointOnObject", 17, 2, -1))
sketch6.addConstraint(Sketcher.Constraint("Radius", 1, 10.0))
sketch6.addConstraint(Sketcher.Constraint("Radius", 3, 9.0))
sketch6.addConstraint(Sketcher.Constraint("Radius", 5, 10.0))
sketch6.addConstraint(Sketcher.Constraint("Radius", 7, 5.0))
sketch6.addConstraint(Sketcher.Constraint("Radius", 11, 1.0))
sketch6.addConstraint(Sketcher.Constraint("Radius", 13, 4.0))
sketch6.addConstraint(Sketcher.Constraint("Radius", 19, 4.0))
sketch6.addConstraint(Sketcher.Constraint("Radius", 21, 1.0))
sketch6.addConstraint(Sketcher.Constraint("Radius", 25, 5.0))
sketch6.addConstraint(Sketcher.Constraint("Radius", 27, 10.0))
sketch6.addConstraint(Sketcher.Constraint("Radius", 29, 9.0))
sketch6.addConstraint(Sketcher.Constraint("Radius", 31, 10.0))
sketch6.addConstraint(Sketcher.Constraint("DistanceX", 14, 2, 14, 1, 29.0))
sketch6.addConstraint(Sketcher.Constraint("DistanceX", 16, 1, 16, 2, 110.0))
sketch6.addConstraint(Sketcher.Constraint("DistanceX", 18, 2, 18, 1, 29.0))
sketch6.addConstraint(Sketcher.Constraint("DistanceY", 15, 1, 15, 2, 120.0))
sketch6.addConstraint(Sketcher.Constraint("DistanceX", -1, 1, 11, 3, 24.0))
sketch6.addConstraint(Sketcher.Constraint("DistanceX", -1, 1, 19, 3, 81.0))
sketch6.addConstraint(Sketcher.Constraint("DistanceY", -1, 1, 12, 2, 4.0))
sketch6.addConstraint(Sketcher.Constraint("DistanceY", -1, 1, 19, 2, 4.0))
sketch6.addConstraint(Sketcher.Constraint("DistanceY", -1, 1, 1, 3, 100.5))
sketch6.addConstraint(Sketcher.Constraint("DistanceX", 0, 2, 0, 1, 22.700401))
sketch6.addConstraint(Sketcher.Constraint("Radius", 9, 9.328876))
sketch6.addConstraint(Sketcher.Constraint("Radius", 23, 9.328876))
sketch6.addConstraint(Sketcher.Constraint("Distance", 10, 1.429198))
sketch6.addConstraint(Sketcher.Constraint("Distance", 22, 1.429198))
sketch6.addConstraint(Sketcher.Constraint("DistanceY", 12, 2, 12, 1, 7.38289))
sketch6.addConstraint(Sketcher.Constraint("DistanceY", 20, 1, 20, 2, 7.38289))
sketch6.addConstraint(Sketcher.Constraint("DistanceX", -1, 1, 1, 3, 43.649799))
sketch6.addConstraint(Sketcher.Constraint("DistanceX", -1, 1, 31, 3, 66.350201))
sketch6.addConstraint(Sketcher.Constraint("DistanceX", -1, 1, 0, 2, 43.649799))
sketch6.addConstraint(Sketcher.Constraint("DistanceX", -1, 1, 9, 2, 22.297101))
sketch6.addConstraint(Sketcher.Constraint("DistanceX", -1, 1, 22, 2, 87.702899))
sketch6.addConstraint(Sketcher.Constraint("DistanceY", 5, 3, 3, 3, 17.3429))
sketch6.addConstraint(Sketcher.Constraint("DistanceY", 27, 3, 29, 3, 17.3429))
sketch6.addConstraint(Sketcher.Constraint("DistanceX", 3, 3, 1, 1, 23.933602))
sketch6.addConstraint(Sketcher.Constraint("DistanceX", 4, 2, 3, 3, 2.5056))
sketch6.addConstraint(Sketcher.Constraint("DistanceY", 5, 1, 3, 3, 17.3429))
sketch6.addConstraint(Sketcher.Constraint("DistanceX", 7, 1, 9, 3, 2.850399))
sketch6.addConstraint(Sketcher.Constraint("DistanceX", 23, 3, 24, 2, 2.850399))
sketch6.addConstraint(Sketcher.Constraint("DistanceY", 26, 2, 29, 3, 17.3429))
sketch6.addConstraint(Sketcher.Constraint("DistanceX", 29, 3, 27, 1, 2.5056))
sketch6.addConstraint(Sketcher.Constraint("DistanceX", 30, 2, 27, 1, 26.439201))
sketch6.addConstraint(Sketcher.Constraint("Distance", 8, 8.055082))
sketch6.addConstraint(Sketcher.Constraint("Distance", 24, 8.055082))
sketch6.addConstraint(Sketcher.Constraint("DistanceY", 6, 2, 6, 1, 60.325324))
sketch6.addConstraint(Sketcher.Constraint("DistanceY", 26, 1, 26, 2, 60.325324))
sketch6.addConstraint(Sketcher.Constraint("DistanceY", -1, 1, 7, 3, 28.864879))
sketch6.addConstraint(Sketcher.Constraint("DistanceY", -1, 1, 11, 3, 11.38289))
sketch6.addConstraint(Sketcher.Constraint("DistanceY", -1, 1, 21, 3, 11.38289))
sketch6.addConstraint(Sketcher.Constraint("DistanceY", -1, 1, 25, 3, 28.864879))
sketch6.addConstraint(Sketcher.Constraint("DistanceX", -1, 1, 3, 2, 5.710269))
sketch6.addConstraint(Sketcher.Constraint("DistanceY", -1, 1, 3, 2, 100.451581))
sketch6.addConstraint(Sketcher.Constraint("DistanceY", -1, 1, 4, 2, 95.947449))
sketch6.addConstraint(Sketcher.Constraint("DistanceY", -1, 1, 6, 2, 28.864879))
sketch6.addConstraint(Sketcher.Constraint("DistanceX", -1, 1, 8, 2, 5.710269))
sketch6.addConstraint(Sketcher.Constraint("DistanceY", -1, 1, 8, 2, 19.548419))
sketch6.addConstraint(Sketcher.Constraint("DistanceX", -1, 1, 23, 2, 104.289731))
sketch6.addConstraint(Sketcher.Constraint("DistanceY", -1, 1, 23, 2, 19.548419))
sketch6.addConstraint(Sketcher.Constraint("DistanceY", -1, 1, 25, 1, 28.864879))
sketch6.addConstraint(Sketcher.Constraint("DistanceY", -1, 1, 27, 1, 95.947449))
sketch6.addConstraint(Sketcher.Constraint("DistanceX", -1, 1, 28, 2, 104.289731))
sketch6.addConstraint(Sketcher.Constraint("DistanceY", -1, 1, 28, 2, 100.451581))
sketch6.addConstraint(Sketcher.Constraint("DistanceY", 3, 3, 2, 2, 6.081522))
sketch6.addConstraint(Sketcher.Constraint("DistanceY", 29, 3, 29, 2, 6.081522))
pocket4 = body.newObject("PartDesign::Pocket", "Pocket003")
pocket4.Profile = sketch6
pocket4.Length = 10
pocket4.Reversed = True

doc.recompute()
